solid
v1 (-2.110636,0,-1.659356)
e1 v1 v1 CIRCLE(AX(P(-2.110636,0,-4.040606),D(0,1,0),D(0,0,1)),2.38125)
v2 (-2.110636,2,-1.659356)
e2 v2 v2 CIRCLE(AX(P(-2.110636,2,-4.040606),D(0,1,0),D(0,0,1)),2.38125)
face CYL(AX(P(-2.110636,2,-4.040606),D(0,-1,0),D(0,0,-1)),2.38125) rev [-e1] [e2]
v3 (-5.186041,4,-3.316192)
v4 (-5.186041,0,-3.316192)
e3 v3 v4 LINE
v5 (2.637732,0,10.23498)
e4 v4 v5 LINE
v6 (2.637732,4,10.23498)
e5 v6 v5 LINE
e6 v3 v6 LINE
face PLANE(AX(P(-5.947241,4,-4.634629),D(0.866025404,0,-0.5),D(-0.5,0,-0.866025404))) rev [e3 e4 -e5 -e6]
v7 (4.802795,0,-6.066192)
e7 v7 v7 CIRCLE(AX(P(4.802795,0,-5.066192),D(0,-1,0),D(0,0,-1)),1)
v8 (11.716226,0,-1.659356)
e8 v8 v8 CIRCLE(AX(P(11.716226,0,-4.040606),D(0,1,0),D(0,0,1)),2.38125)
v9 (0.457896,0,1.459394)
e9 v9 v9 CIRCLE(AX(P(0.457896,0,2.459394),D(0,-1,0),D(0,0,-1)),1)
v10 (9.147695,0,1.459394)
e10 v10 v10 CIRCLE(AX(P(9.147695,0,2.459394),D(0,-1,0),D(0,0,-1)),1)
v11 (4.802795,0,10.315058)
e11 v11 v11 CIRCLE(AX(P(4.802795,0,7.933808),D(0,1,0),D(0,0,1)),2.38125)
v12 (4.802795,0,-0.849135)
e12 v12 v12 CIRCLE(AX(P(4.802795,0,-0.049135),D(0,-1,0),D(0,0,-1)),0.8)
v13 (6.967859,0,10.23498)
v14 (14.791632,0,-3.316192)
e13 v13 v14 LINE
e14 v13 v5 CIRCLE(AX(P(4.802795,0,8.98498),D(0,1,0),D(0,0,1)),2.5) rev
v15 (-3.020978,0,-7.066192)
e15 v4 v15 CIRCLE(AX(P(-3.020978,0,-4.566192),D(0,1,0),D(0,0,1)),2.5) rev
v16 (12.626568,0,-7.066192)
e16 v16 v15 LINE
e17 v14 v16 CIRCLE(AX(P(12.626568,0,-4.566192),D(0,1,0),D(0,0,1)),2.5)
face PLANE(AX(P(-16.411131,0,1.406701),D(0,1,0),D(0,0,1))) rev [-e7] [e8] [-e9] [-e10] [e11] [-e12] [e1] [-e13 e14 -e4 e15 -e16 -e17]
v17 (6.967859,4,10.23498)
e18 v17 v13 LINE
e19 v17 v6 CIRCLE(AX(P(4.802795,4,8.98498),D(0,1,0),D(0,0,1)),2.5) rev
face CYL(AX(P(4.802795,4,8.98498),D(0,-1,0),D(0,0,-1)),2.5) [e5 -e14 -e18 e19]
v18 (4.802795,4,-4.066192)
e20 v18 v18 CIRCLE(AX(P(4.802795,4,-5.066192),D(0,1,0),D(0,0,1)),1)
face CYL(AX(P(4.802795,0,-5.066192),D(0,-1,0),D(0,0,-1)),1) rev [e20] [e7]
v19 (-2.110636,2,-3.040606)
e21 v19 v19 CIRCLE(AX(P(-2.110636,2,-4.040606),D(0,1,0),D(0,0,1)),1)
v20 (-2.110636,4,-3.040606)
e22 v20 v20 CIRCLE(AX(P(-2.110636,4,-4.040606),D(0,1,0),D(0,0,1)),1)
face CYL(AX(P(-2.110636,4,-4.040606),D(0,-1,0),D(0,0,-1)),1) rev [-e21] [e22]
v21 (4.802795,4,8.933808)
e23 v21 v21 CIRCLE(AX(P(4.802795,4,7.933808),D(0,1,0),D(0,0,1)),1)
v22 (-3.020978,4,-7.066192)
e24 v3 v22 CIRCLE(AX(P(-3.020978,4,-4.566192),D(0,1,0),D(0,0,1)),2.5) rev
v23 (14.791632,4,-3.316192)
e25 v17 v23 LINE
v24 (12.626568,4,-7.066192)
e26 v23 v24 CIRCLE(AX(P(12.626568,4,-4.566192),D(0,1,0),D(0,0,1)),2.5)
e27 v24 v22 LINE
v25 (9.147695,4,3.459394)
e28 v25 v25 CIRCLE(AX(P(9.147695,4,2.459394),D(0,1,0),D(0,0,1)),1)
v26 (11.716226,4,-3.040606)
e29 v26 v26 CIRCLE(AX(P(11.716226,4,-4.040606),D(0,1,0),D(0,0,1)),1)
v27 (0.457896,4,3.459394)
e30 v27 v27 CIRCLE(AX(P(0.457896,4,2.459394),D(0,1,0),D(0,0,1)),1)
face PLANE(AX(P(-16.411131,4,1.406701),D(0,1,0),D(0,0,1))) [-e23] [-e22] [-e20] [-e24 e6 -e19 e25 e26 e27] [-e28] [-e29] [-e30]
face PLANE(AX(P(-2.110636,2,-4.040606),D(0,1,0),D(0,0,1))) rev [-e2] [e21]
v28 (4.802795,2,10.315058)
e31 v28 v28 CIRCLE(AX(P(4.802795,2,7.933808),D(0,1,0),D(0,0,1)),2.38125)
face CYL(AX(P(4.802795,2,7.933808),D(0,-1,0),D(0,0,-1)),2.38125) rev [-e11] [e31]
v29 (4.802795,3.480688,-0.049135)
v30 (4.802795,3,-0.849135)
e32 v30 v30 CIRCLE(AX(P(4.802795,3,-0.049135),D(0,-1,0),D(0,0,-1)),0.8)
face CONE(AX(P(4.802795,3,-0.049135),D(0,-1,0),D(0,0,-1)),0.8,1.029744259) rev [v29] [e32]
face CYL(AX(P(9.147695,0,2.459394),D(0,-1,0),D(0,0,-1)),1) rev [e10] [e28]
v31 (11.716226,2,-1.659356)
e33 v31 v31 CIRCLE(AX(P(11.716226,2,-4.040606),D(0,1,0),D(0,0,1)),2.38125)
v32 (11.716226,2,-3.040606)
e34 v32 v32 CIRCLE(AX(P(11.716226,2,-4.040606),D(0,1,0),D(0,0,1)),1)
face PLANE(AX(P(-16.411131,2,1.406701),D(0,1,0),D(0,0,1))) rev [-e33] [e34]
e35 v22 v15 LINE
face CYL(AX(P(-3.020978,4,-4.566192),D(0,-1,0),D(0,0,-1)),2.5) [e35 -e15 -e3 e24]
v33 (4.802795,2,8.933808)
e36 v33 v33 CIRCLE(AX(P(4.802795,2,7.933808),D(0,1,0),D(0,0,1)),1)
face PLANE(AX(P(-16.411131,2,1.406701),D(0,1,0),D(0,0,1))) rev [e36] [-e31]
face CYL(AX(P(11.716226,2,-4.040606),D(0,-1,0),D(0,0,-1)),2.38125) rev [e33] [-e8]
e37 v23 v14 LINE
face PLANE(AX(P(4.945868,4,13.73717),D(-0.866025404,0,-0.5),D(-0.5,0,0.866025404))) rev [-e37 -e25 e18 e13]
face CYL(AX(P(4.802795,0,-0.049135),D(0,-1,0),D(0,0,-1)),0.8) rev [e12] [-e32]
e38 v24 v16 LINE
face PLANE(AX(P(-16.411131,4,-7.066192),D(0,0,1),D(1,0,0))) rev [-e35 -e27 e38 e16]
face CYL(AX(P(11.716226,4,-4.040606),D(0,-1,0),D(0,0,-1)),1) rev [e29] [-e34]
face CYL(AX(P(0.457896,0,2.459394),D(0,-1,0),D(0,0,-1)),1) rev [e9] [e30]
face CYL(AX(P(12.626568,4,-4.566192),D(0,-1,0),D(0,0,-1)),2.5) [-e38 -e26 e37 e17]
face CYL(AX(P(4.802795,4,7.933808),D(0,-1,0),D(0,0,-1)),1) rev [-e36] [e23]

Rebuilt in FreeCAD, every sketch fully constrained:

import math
import FreeCAD as App
import Part
import Sketcher
Q = App.Units.Quantity

doc = App.newDocument("Part")
params = doc.addObject("Spreadsheet::Sheet", "Params")
for row, (alias, value) in enumerate([
    ("sketch1_diameter", "2 mm"),
    ("sketch1_radius", "2.5 mm"),
    ("pad1_length", "4 mm"),
    ("pocket1_length", "2 mm"),
    ("sketch3_diameter", "1.6 mm"),
    ("hole_diameter", "1.6 mm"),
    ("hole_depth", "3 mm"),
    ("sketch4_diameter", "2 mm"),
    ("hole2_diameter", "2 mm"),
    ("hole2_depth", "10 mm"),
], start=1):
    params.set(f"A{row}", alias)
    params.set(f"B{row}", "=" + value)
    params.setAlias(f"B{row}", alias)

body = doc.addObject("PartDesign::Body", "Body")

sketch1 = doc.addObject("Sketcher::SketchObject", "Sketch")
body.addObject(sketch1)
sketch1.AttachmentSupport = (doc.XZ_Plane, [""])
sketch1.MapMode = "FlatFace"
sketch1.addGeometry([
    Part.LineSegment(App.Vector(-5.2, -3.3, 0), App.Vector(2.6, 10.2, 0)),
    Part.ArcOfCircle(Part.Circle(App.Vector(4.8, 9, 0), App.Vector(0, 0, 1), 2.5), math.radians(30), math.radians(150)),
    Part.LineSegment(App.Vector(7, 10.2, 0), App.Vector(14.8, -3.3, 0)),
    Part.ArcOfCircle(Part.Circle(App.Vector(12.6, -4.6, 0), App.Vector(0, 0, 1), 2.5), math.radians(-90), math.radians(30)),
    Part.LineSegment(App.Vector(12.6, -7.1, 0), App.Vector(-3, -7.1, 0)),
    Part.ArcOfCircle(Part.Circle(App.Vector(-3, -4.6, 0), App.Vector(0, 0, 1), 2.5), math.radians(150), math.radians(270)),
    Part.Circle(App.Vector(4.8, 7.9, 0), App.Vector(0, 0, 1), 1),
    Part.Circle(App.Vector(-2.1, -4, 0), App.Vector(0, 0, 1), 1),
    Part.Circle(App.Vector(11.7, -4, 0), App.Vector(0, 0, 1), 1),
], False)
sketch1.addConstraint([
    Sketcher.Constraint("Tangent", 0, 2, 1, 2),
    Sketcher.Constraint("Tangent", 1, 1, 2, 1),
    Sketcher.Constraint("Tangent", 2, 2, 3, 2),
    Sketcher.Constraint("Tangent", 3, 1, 4, 1),
    Sketcher.Constraint("Tangent", 4, 2, 5, 2),
    Sketcher.Constraint("Tangent", 5, 1, 0, 1),
    Sketcher.Constraint("Horizontal", 4),
    Sketcher.Constraint("Equal", 1, 3),
    Sketcher.Constraint("Equal", 3, 5),
    Sketcher.Constraint("Equal", 6, 7),
    Sketcher.Constraint("Equal", 7, 8),
    Sketcher.Constraint("Horizontal", 7, 3, 8, 3),
    Sketcher.Constraint("Horizontal", 0, 2, 1, 1),
    Sketcher.Constraint("Vertical", 1, 3, 6, 3),
    Sketcher.Constraint("Diameter", 6, 2.0),
    Sketcher.Constraint("Radius", 1, 2.5),
    Sketcher.Constraint("Angle", 0, Q("60 deg")),
    Sketcher.Constraint("DistanceY", 5, 3, 6, 3, 12.5),
    Sketcher.Constraint("DistanceX", 4, 2, 4, 1, 15.647546),
    Sketcher.Constraint("DistanceY", -1, 1, 1, 3, 8.98498),
    Sketcher.Constraint("DistanceX", -1, 1, 3, 3, 12.626568),
    Sketcher.Constraint("DistanceX", 5, 3, 7, 3, 0.910342),
    Sketcher.Constraint("DistanceX", 8, 3, 3, 3, 0.910342),
    Sketcher.Constraint("DistanceY", 7, 3, -1, 1, 4.040606),
])
sketch1.setExpression("Constraints[14]", "Params.sketch1_diameter")
sketch1.setExpression("Constraints[15]", "Params.sketch1_radius")
pad1 = doc.addObject("PartDesign::Pad", "Pad")
body.addObject(pad1)
pad1.Profile = sketch1
pad1.setExpression("Length", "Params.pad1_length")
pad1.Reversed = True

sketch2 = doc.addObject("Sketcher::SketchObject", "Sketch001")
body.addObject(sketch2)
sketch2.AttachmentSupport = (doc.XZ_Plane, [""])
sketch2.MapMode = "FlatFace"
sketch2.addGeometry([
    Part.Circle(App.Vector(4.8, 7.9, 0), App.Vector(0, 0, 1), 2.4),
    Part.Circle(App.Vector(11.7, -4, 0), App.Vector(0, 0, 1), 2.4),
    Part.Circle(App.Vector(-2.1, -4, 0), App.Vector(0, 0, 1), 2.4),
], False)
sketch2.addConstraint([
    Sketcher.Constraint("Equal", 0, 1),
    Sketcher.Constraint("Equal", 1, 2),
    Sketcher.Constraint("Horizontal", 1, 3, 2, 3),
    Sketcher.Constraint("Diameter", 0, 4.7625),
    Sketcher.Constraint("DistanceX", 0, 3, 1, 3, 6.913431),
    Sketcher.Constraint("DistanceX", 2, 3, 0, 3, 6.913431),
    Sketcher.Constraint("DistanceX", -1, 1, 0, 3, 4.802795),
    Sketcher.Constraint("DistanceY", -1, 1, 0, 3, 7.933808),
    Sketcher.Constraint("DistanceY", 1, 3, -1, 1, 4.040606),
])
pocket1 = doc.addObject("PartDesign::Pocket", "Pocket")
body.addObject(pocket1)
pocket1.Profile = sketch2
pocket1.setExpression("Length", "Params.pocket1_length")

sketch3 = doc.addObject("Sketcher::SketchObject", "Sketch002")
body.addObject(sketch3)
sketch3.AttachmentSupport = (doc.XZ_Plane, [""])
sketch3.MapMode = "FlatFace"
sketch3.addGeometry(Part.Circle(App.Vector(4.8, 0, 0), App.Vector(0, 0, 1), 0.8), False)
sketch3.addConstraint([
    Sketcher.Constraint("Diameter", 0, 1.6),
    Sketcher.Constraint("DistanceX", -1, 1, 0, 3, 4.802795),
    Sketcher.Constraint("DistanceY", 0, 3, -1, 1, 0.049135),
])
sketch3.setExpression("Constraints[0]", "Params.sketch3_diameter")
doc.recompute()
hole = doc.addObject("PartDesign::Hole", "Hole")
body.addObject(hole)
hole.Profile = sketch3
hole.ThreadType = "None"
hole.setExpression("Diameter", "Params.hole_diameter")
hole.DepthType = "Dimension"
hole.setExpression("Depth", "Params.hole_depth")
hole.DrillPoint = "Angled"
hole.DrillPointAngle = 118

sketch4 = doc.addObject("Sketcher::SketchObject", "Sketch003")
body.addObject(sketch4)
sketch4.AttachmentSupport = (doc.XZ_Plane, [""])
sketch4.MapMode = "FlatFace"
sketch4.addGeometry([
    Part.Circle(App.Vector(0.5, 2.5, 0), App.Vector(0, 0, 1), 1),
    Part.Circle(App.Vector(9.1, 2.5, 0), App.Vector(0, 0, 1), 1),
    Part.Circle(App.Vector(4.8, -5.1, 0), App.Vector(0, 0, 1), 1),
], False)
sketch4.addConstraint([
    Sketcher.Constraint("Equal", 0, 1),
    Sketcher.Constraint("Equal", 1, 2),
    Sketcher.Constraint("Horizontal", 0, 3, 1, 3),
    Sketcher.Constraint("Diameter", 0, 2.0),
    Sketcher.Constraint("DistanceX", 0, 3, 1, 3, 8.689798),
    Sketcher.Constraint("DistanceX", 0, 3, 2, 3, 4.344899),
    Sketcher.Constraint("DistanceX", -1, 1, 0, 3, 0.457896),
    Sketcher.Constraint("DistanceY", -1, 1, 0, 3, 2.459394),
    Sketcher.Constraint("DistanceY", 2, 3, -1, 1, 5.066192),
])
sketch4.setExpression("Constraints[3]", "Params.sketch4_diameter")
doc.recompute()
hole2 = doc.addObject("PartDesign::Hole", "Hole001")
body.addObject(hole2)
hole2.Profile = sketch4
hole2.ThreadType = "None"
hole2.setExpression("Diameter", "Params.hole2_diameter")
hole2.DepthType = "Dimension"
hole2.setExpression("Depth", "Params.hole2_depth")
hole2.DrillPoint = "Angled"
hole2.DrillPointAngle = 118

doc.recompute()
